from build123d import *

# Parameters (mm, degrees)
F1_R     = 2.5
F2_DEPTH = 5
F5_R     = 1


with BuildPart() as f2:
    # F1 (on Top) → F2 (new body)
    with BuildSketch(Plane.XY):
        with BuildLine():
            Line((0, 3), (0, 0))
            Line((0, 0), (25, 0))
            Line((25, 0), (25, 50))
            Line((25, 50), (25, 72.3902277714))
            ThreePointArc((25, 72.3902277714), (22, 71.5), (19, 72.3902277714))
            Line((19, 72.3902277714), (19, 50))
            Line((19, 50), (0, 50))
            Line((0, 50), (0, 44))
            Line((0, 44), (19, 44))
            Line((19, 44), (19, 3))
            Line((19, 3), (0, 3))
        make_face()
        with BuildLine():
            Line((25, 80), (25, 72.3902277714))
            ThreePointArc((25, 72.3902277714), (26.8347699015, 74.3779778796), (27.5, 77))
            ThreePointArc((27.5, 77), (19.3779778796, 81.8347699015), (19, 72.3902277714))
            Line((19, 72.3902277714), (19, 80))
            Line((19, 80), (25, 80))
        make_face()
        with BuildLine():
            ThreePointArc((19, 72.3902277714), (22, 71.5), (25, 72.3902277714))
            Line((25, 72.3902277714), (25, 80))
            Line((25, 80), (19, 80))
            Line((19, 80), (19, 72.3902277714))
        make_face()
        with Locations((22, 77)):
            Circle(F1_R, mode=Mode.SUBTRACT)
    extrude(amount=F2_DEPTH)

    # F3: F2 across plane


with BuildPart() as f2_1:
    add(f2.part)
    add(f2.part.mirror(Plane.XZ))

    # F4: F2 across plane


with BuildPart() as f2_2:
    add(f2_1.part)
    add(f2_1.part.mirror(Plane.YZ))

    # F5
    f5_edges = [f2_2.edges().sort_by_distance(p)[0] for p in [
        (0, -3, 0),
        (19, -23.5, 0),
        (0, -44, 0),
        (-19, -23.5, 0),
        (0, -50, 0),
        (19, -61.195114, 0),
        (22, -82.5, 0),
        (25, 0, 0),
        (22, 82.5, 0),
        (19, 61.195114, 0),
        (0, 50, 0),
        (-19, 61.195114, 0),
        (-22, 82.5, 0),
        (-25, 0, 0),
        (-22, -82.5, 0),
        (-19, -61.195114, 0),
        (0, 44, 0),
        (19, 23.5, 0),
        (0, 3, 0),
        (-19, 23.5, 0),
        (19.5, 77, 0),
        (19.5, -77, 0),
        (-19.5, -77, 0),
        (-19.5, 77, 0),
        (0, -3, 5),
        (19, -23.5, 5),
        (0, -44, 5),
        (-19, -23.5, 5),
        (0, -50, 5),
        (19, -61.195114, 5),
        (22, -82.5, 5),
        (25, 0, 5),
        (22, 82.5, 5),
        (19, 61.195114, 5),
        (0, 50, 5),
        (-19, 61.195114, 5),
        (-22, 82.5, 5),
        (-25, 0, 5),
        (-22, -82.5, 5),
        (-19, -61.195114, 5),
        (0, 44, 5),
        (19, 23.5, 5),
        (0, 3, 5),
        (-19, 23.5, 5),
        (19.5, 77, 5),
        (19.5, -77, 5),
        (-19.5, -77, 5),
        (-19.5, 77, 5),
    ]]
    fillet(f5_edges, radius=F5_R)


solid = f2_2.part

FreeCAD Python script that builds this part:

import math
import FreeCAD as App
import Part
import Sketcher
from FreeCAD import Vector
Q = App.Units.Quantity


def edges_at(feature, points):
    """Names of the edges that pass closest to the given points."""
    edges = feature.Shape.Edges
    near = lambda p: min(range(len(edges)), key=lambda i: edges[i].distToShape(Part.Vertex(*p))[0])
    return sorted({f"Edge{near(p) + 1}" for p in points})

doc = App.newDocument("Part")
body = doc.addObject("PartDesign::Body", "Body")

sketch1 = body.newObject("Sketcher::SketchObject", "Sketch")
sketch1.AttachmentSupport = (doc.getObject("XY_Plane"), [""])
sketch1.MapMode = "FlatFace"
sketch1.addGeometry(Part.LineSegment(Vector(0, 3, 0), Vector(0, 0, 0)), False)
sketch1.addGeometry(Part.LineSegment(Vector(0, 0, 0), Vector(25, 0, 0)), False)
sketch1.addGeometry(Part.LineSegment(Vector(25, 0, 0), Vector(25, 72.4, 0)), False)
sketch1.addGeometry(Part.ArcOfCircle(Part.Circle(Vector(22, 77, 0), Vector(0, 0, 1), 5.5), math.radians(-57), math.radians(0)), False)
sketch1.addGeometry(Part.ArcOfCircle(Part.Circle(Vector(22, 77, 0), Vector(0, 0, 1), 5.5), math.radians(0), math.radians(237)), False)
sketch1.addGeometry(Part.LineSegment(Vector(19, 72.4, 0), Vector(19, 50, 0)), False)
sketch1.addGeometry(Part.LineSegment(Vector(19, 50, 0), Vector(0, 50, 0)), False)
sketch1.addGeometry(Part.LineSegment(Vector(0, 50, 0), Vector(0, 44, 0)), False)
sketch1.addGeometry(Part.LineSegment(Vector(0, 44, 0), Vector(19, 44, 0)), False)
sketch1.addGeometry(Part.LineSegment(Vector(19, 44, 0), Vector(19, 3, 0)), False)
sketch1.addGeometry(Part.LineSegment(Vector(19, 3, 0), Vector(0, 3, 0)), False)
sketch1.addGeometry(Part.Circle(Vector(22, 77, 0), Vector(0, 0, 1), 2.5), False)
sketch1.addConstraint(Sketcher.Constraint("Coincident", 0, 2, 1, 1))
sketch1.addConstraint(Sketcher.Constraint("Coincident", 1, 2, 2, 1))
sketch1.addConstraint(Sketcher.Constraint("Coincident", 2, 2, 3, 1))
sketch1.addConstraint(Sketcher.Constraint("Tangent", 3, 2, 4, 1))
sketch1.addConstraint(Sketcher.Constraint("Coincident", 4, 2, 5, 1))
sketch1.addConstraint(Sketcher.Constraint("Coincident", 5, 2, 6, 1))
sketch1.addConstraint(Sketcher.Constraint("Coincident", 6, 2, 7, 1))
sketch1.addConstraint(Sketcher.Constraint("Coincident", 7, 2, 8, 1))
sketch1.addConstraint(Sketcher.Constraint("Coincident", 8, 2, 9, 1))
sketch1.addConstraint(Sketcher.Constraint("Coincident", 9, 2, 10, 1))
sketch1.addConstraint(Sketcher.Constraint("Coincident", 10, 2, 0, 1))
sketch1.addConstraint(Sketcher.Constraint("Vertical", 0))
sketch1.addConstraint(Sketcher.Constraint("Horizontal", 1))
sketch1.addConstraint(Sketcher.Constraint("Vertical", 2))
sketch1.addConstraint(Sketcher.Constraint("Vertical", 5))
sketch1.addConstraint(Sketcher.Constraint("Horizontal", 6))
sketch1.addConstraint(Sketcher.Constraint("Vertical", 7))
sketch1.addConstraint(Sketcher.Constraint("Horizontal", 8))
sketch1.addConstraint(Sketcher.Constraint("Vertical", 9))
sketch1.addConstraint(Sketcher.Constraint("Horizontal", 10))
sketch1.addConstraint(Sketcher.Constraint("Coincident", 0, 2, -1, 1))
sketch1.addConstraint(Sketcher.Constraint("Coincident", 11, 3, 3, 3))
sketch1.addConstraint(Sketcher.Constraint("Equal", 3, 4))
sketch1.addConstraint(Sketcher.Constraint("PointOnObject", 6, 2, -2))
sketch1.addConstraint(Sketcher.Constraint("Horizontal", 11, 3, 3, 2))
sketch1.addConstraint(Sketcher.Constraint("Horizontal", 2, 2, 4, 2))
sketch1.addConstraint(Sketcher.Constraint("Vertical", 5, 2, 8, 2))
sketch1.addConstraint(Sketcher.Constraint("Diameter", 11, Q("5 mm")))
sketch1.addConstraint(Sketcher.Constraint("Radius", 3, Q("5.5 mm")))
sketch1.addConstraint(Sketcher.Constraint("DistanceX", 1, 1, 1, 2, Q("25 mm")))
sketch1.addConstraint(Sketcher.Constraint("DistanceX", 6, 2, 6, 1, Q("19 mm")))
sketch1.addConstraint(Sketcher.Constraint("DistanceY", 0, 2, 0, 1, Q("3 mm")))
sketch1.addConstraint(Sketcher.Constraint("DistanceY", 7, 2, 7, 1, Q("6 mm")))
sketch1.addConstraint(Sketcher.Constraint("DistanceY", 9, 2, 9, 1, Q("41 mm")))
sketch1.addConstraint(Sketcher.Constraint("DistanceY", -1, 1, 3, 3, Q("77 mm")))
pad1 = body.newObject("PartDesign::Pad", "Pad")
pad1.Profile = sketch1
pad1.Length = 5
body2 = doc.addObject("PartDesign::Body", "Body001")
doc.recompute()

body2.BaseFeature = body
doc.recompute()

mirroring = doc.addObject("Part::Mirroring", "Mirroring")
mirroring.Source = body
mirroring.Base = Vector(0, 0, 0)
mirroring.Normal = Vector(0, -1, 0)
body3 = doc.addObject("PartDesign::Body", "Body002")
body3.BaseFeature = mirroring
boolean = body2.newObject("PartDesign::Boolean", "Boolean")
boolean.Type = "Fuse"
boolean.addObjects([body3])
doc.recompute()
body4 = doc.addObject("PartDesign::Body", "Body003")
doc.recompute()

body4.BaseFeature = body2
doc.recompute()

mirroring2 = doc.addObject("Part::Mirroring", "Mirroring001")
mirroring2.Source = body2
mirroring2.Base = Vector(0, 0, 0)
mirroring2.Normal = Vector(1, 0, 0)
body5 = doc.addObject("PartDesign::Body", "Body004")
body5.BaseFeature = mirroring2
boolean2 = body4.newObject("PartDesign::Boolean", "Boolean001")
boolean2.Type = "Fuse"
boolean2.addObjects([body5])
doc.recompute()

fillet = body4.newObject("PartDesign::Fillet", "Fillet")
fillet.Base = (boolean2, edges_at(boolean2, [
    (0, -3, 0),
    (19, -23.5, 0),
    (0, -44, 0),
    (-19, -23.5, 0),
    (0, -50, 0),
    (19, -61.195, 0),
    (19.378, -81.835, 0),
    (25, 0, 0),
    (19.378, 81.835, 0),
    (19, 61.195, 0),
    (0, 50, 0),
    (-19, 61.195, 0),
    (-19.378, 81.835, 0),
    (-25, 0, 0),
    (-19.378, -81.835, 0),
    (-19, -61.195, 0),
    (0, 44, 0),
    (19, 23.5, 0),
    (0, 3, 0),
    (-19, 23.5, 0),
    (19.5, 77, 0),
    (19.5, -77, 0),
    (-19.5, -77, 0),
    (-19.5, 77, 0),
    (0, -3, 5),
    (19, -23.5, 5),
    (0, -44, 5),
    (-19, -23.5, 5),
    (0, -50, 5),
    (19, -61.195, 5),
    (19.378, -81.835, 5),
    (25, 0, 5),
    (19.378, 81.835, 5),
    (19, 61.195, 5),
    (0, 50, 5),
    (-19, 61.195, 5),
    (-19.378, 81.835, 5),
    (-25, 0, 5),
    (-19.378, -81.835, 5),
    (-19, -61.195, 5),
    (0, 44, 5),
    (19, 23.5, 5),
    (0, 3, 5),
    (-19, 23.5, 5),
    (19.5, 77, 5),
    (19.5, -77, 5),
    (-19.5, -77, 5),
    (-19.5, 77, 5),
]))
fillet.Radius = 1
mirroring.Visibility = False
mirroring2.Visibility = False

doc.recompute()
